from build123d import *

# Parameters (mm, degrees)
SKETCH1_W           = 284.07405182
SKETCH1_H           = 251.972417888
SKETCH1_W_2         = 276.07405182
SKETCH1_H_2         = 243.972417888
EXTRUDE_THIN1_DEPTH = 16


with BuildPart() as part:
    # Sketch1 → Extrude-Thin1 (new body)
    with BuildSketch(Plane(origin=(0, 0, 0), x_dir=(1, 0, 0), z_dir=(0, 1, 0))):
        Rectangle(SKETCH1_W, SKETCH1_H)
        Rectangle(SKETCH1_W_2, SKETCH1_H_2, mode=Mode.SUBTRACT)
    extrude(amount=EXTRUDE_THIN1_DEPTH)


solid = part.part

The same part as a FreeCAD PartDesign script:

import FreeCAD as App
import Part
import Sketcher

V = App.Vector
Q = App.Units.Quantity

doc = App.newDocument("Part")
params = doc.addObject("Spreadsheet::Sheet", "Params")
for row, (alias, value) in enumerate([
    ("pad1_length", "16 mm"),
], start=1):
    params.set(f"A{row}", alias)
    params.set(f"B{row}", "=" + value)
    params.setAlias(f"B{row}", alias)

body = doc.addObject("PartDesign::Body", "Body")

sketch1 = doc.addObject("Sketcher::SketchObject", "Sketch")
body.addObject(sketch1)
sketch1.AttachmentSupport = (doc.XZ_Plane, [""])
sketch1.MapMode = "FlatFace"
sketch1.addGeometry(Part.LineSegment(V(-142, -126, 0), V(-142, 126, 0)), False)
sketch1.addGeometry(Part.LineSegment(V(-142, 126, 0), V(142, 126, 0)), False)
sketch1.addGeometry(Part.LineSegment(V(142, 126, 0), V(142, -126, 0)), False)
sketch1.addGeometry(Part.LineSegment(V(142, -126, 0), V(-142, -126, 0)), False)
sketch1.addGeometry(Part.LineSegment(V(138, 122, 0), V(-138, 122, 0)), False)
sketch1.addGeometry(Part.LineSegment(V(-138, 122, 0), V(-138, -122, 0)), False)
sketch1.addGeometry(Part.LineSegment(V(-138, -122, 0), V(138, -122, 0)), False)
sketch1.addGeometry(Part.LineSegment(V(138, -122, 0), V(138, 122, 0)), False)
sketch1.addConstraint(Sketcher.Constraint("Coincident", 0, 2, 1, 1))
sketch1.addConstraint(Sketcher.Constraint("Coincident", 1, 2, 2, 1))
sketch1.addConstraint(Sketcher.Constraint("Coincident", 2, 2, 3, 1))
sketch1.addConstraint(Sketcher.Constraint("Coincident", 3, 2, 0, 1))
sketch1.addConstraint(Sketcher.Constraint("Coincident", 4, 2, 5, 1))
sketch1.addConstraint(Sketcher.Constraint("Coincident", 5, 2, 6, 1))
sketch1.addConstraint(Sketcher.Constraint("Coincident", 6, 2, 7, 1))
sketch1.addConstraint(Sketcher.Constraint("Coincident", 7, 2, 4, 1))
sketch1.addConstraint(Sketcher.Constraint("Vertical", 0))
sketch1.addConstraint(Sketcher.Constraint("Horizontal", 1))
sketch1.addConstraint(Sketcher.Constraint("Vertical", 2))
sketch1.addConstraint(Sketcher.Constraint("Horizontal", 3))
sketch1.addConstraint(Sketcher.Constraint("Horizontal", 4))
sketch1.addConstraint(Sketcher.Constraint("Vertical", 5))
sketch1.addConstraint(Sketcher.Constraint("Horizontal", 6))
sketch1.addConstraint(Sketcher.Constraint("Vertical", 7))
sketch1.addConstraint(Sketcher.Constraint("Symmetric", 0, 2, 2, 2, -1, 1))
sketch1.addConstraint(Sketcher.Constraint("Symmetric", 4, 2, 6, 2, -1, 1))
sketch1.addConstraint(Sketcher.Constraint("DistanceX", 0, 2, 4, 2, Q("4 mm")))
sketch1.addConstraint(Sketcher.Constraint("DistanceY", 4, 2, 0, 2, Q("4 mm")))
sketch1.addConstraint(Sketcher.Constraint("DistanceX", 1, 1, 1, 2, Q("284.074052 mm")))
sketch1.addConstraint(Sketcher.Constraint("DistanceY", 0, 1, 0, 2, Q("251.972418 mm")))
pad1 = doc.addObject("PartDesign::Pad", "Pad")
body.addObject(pad1)
pad1.Profile = sketch1
pad1.setExpression("Length", "Params.pad1_length")
pad1.Reversed = True

doc.recompute()
